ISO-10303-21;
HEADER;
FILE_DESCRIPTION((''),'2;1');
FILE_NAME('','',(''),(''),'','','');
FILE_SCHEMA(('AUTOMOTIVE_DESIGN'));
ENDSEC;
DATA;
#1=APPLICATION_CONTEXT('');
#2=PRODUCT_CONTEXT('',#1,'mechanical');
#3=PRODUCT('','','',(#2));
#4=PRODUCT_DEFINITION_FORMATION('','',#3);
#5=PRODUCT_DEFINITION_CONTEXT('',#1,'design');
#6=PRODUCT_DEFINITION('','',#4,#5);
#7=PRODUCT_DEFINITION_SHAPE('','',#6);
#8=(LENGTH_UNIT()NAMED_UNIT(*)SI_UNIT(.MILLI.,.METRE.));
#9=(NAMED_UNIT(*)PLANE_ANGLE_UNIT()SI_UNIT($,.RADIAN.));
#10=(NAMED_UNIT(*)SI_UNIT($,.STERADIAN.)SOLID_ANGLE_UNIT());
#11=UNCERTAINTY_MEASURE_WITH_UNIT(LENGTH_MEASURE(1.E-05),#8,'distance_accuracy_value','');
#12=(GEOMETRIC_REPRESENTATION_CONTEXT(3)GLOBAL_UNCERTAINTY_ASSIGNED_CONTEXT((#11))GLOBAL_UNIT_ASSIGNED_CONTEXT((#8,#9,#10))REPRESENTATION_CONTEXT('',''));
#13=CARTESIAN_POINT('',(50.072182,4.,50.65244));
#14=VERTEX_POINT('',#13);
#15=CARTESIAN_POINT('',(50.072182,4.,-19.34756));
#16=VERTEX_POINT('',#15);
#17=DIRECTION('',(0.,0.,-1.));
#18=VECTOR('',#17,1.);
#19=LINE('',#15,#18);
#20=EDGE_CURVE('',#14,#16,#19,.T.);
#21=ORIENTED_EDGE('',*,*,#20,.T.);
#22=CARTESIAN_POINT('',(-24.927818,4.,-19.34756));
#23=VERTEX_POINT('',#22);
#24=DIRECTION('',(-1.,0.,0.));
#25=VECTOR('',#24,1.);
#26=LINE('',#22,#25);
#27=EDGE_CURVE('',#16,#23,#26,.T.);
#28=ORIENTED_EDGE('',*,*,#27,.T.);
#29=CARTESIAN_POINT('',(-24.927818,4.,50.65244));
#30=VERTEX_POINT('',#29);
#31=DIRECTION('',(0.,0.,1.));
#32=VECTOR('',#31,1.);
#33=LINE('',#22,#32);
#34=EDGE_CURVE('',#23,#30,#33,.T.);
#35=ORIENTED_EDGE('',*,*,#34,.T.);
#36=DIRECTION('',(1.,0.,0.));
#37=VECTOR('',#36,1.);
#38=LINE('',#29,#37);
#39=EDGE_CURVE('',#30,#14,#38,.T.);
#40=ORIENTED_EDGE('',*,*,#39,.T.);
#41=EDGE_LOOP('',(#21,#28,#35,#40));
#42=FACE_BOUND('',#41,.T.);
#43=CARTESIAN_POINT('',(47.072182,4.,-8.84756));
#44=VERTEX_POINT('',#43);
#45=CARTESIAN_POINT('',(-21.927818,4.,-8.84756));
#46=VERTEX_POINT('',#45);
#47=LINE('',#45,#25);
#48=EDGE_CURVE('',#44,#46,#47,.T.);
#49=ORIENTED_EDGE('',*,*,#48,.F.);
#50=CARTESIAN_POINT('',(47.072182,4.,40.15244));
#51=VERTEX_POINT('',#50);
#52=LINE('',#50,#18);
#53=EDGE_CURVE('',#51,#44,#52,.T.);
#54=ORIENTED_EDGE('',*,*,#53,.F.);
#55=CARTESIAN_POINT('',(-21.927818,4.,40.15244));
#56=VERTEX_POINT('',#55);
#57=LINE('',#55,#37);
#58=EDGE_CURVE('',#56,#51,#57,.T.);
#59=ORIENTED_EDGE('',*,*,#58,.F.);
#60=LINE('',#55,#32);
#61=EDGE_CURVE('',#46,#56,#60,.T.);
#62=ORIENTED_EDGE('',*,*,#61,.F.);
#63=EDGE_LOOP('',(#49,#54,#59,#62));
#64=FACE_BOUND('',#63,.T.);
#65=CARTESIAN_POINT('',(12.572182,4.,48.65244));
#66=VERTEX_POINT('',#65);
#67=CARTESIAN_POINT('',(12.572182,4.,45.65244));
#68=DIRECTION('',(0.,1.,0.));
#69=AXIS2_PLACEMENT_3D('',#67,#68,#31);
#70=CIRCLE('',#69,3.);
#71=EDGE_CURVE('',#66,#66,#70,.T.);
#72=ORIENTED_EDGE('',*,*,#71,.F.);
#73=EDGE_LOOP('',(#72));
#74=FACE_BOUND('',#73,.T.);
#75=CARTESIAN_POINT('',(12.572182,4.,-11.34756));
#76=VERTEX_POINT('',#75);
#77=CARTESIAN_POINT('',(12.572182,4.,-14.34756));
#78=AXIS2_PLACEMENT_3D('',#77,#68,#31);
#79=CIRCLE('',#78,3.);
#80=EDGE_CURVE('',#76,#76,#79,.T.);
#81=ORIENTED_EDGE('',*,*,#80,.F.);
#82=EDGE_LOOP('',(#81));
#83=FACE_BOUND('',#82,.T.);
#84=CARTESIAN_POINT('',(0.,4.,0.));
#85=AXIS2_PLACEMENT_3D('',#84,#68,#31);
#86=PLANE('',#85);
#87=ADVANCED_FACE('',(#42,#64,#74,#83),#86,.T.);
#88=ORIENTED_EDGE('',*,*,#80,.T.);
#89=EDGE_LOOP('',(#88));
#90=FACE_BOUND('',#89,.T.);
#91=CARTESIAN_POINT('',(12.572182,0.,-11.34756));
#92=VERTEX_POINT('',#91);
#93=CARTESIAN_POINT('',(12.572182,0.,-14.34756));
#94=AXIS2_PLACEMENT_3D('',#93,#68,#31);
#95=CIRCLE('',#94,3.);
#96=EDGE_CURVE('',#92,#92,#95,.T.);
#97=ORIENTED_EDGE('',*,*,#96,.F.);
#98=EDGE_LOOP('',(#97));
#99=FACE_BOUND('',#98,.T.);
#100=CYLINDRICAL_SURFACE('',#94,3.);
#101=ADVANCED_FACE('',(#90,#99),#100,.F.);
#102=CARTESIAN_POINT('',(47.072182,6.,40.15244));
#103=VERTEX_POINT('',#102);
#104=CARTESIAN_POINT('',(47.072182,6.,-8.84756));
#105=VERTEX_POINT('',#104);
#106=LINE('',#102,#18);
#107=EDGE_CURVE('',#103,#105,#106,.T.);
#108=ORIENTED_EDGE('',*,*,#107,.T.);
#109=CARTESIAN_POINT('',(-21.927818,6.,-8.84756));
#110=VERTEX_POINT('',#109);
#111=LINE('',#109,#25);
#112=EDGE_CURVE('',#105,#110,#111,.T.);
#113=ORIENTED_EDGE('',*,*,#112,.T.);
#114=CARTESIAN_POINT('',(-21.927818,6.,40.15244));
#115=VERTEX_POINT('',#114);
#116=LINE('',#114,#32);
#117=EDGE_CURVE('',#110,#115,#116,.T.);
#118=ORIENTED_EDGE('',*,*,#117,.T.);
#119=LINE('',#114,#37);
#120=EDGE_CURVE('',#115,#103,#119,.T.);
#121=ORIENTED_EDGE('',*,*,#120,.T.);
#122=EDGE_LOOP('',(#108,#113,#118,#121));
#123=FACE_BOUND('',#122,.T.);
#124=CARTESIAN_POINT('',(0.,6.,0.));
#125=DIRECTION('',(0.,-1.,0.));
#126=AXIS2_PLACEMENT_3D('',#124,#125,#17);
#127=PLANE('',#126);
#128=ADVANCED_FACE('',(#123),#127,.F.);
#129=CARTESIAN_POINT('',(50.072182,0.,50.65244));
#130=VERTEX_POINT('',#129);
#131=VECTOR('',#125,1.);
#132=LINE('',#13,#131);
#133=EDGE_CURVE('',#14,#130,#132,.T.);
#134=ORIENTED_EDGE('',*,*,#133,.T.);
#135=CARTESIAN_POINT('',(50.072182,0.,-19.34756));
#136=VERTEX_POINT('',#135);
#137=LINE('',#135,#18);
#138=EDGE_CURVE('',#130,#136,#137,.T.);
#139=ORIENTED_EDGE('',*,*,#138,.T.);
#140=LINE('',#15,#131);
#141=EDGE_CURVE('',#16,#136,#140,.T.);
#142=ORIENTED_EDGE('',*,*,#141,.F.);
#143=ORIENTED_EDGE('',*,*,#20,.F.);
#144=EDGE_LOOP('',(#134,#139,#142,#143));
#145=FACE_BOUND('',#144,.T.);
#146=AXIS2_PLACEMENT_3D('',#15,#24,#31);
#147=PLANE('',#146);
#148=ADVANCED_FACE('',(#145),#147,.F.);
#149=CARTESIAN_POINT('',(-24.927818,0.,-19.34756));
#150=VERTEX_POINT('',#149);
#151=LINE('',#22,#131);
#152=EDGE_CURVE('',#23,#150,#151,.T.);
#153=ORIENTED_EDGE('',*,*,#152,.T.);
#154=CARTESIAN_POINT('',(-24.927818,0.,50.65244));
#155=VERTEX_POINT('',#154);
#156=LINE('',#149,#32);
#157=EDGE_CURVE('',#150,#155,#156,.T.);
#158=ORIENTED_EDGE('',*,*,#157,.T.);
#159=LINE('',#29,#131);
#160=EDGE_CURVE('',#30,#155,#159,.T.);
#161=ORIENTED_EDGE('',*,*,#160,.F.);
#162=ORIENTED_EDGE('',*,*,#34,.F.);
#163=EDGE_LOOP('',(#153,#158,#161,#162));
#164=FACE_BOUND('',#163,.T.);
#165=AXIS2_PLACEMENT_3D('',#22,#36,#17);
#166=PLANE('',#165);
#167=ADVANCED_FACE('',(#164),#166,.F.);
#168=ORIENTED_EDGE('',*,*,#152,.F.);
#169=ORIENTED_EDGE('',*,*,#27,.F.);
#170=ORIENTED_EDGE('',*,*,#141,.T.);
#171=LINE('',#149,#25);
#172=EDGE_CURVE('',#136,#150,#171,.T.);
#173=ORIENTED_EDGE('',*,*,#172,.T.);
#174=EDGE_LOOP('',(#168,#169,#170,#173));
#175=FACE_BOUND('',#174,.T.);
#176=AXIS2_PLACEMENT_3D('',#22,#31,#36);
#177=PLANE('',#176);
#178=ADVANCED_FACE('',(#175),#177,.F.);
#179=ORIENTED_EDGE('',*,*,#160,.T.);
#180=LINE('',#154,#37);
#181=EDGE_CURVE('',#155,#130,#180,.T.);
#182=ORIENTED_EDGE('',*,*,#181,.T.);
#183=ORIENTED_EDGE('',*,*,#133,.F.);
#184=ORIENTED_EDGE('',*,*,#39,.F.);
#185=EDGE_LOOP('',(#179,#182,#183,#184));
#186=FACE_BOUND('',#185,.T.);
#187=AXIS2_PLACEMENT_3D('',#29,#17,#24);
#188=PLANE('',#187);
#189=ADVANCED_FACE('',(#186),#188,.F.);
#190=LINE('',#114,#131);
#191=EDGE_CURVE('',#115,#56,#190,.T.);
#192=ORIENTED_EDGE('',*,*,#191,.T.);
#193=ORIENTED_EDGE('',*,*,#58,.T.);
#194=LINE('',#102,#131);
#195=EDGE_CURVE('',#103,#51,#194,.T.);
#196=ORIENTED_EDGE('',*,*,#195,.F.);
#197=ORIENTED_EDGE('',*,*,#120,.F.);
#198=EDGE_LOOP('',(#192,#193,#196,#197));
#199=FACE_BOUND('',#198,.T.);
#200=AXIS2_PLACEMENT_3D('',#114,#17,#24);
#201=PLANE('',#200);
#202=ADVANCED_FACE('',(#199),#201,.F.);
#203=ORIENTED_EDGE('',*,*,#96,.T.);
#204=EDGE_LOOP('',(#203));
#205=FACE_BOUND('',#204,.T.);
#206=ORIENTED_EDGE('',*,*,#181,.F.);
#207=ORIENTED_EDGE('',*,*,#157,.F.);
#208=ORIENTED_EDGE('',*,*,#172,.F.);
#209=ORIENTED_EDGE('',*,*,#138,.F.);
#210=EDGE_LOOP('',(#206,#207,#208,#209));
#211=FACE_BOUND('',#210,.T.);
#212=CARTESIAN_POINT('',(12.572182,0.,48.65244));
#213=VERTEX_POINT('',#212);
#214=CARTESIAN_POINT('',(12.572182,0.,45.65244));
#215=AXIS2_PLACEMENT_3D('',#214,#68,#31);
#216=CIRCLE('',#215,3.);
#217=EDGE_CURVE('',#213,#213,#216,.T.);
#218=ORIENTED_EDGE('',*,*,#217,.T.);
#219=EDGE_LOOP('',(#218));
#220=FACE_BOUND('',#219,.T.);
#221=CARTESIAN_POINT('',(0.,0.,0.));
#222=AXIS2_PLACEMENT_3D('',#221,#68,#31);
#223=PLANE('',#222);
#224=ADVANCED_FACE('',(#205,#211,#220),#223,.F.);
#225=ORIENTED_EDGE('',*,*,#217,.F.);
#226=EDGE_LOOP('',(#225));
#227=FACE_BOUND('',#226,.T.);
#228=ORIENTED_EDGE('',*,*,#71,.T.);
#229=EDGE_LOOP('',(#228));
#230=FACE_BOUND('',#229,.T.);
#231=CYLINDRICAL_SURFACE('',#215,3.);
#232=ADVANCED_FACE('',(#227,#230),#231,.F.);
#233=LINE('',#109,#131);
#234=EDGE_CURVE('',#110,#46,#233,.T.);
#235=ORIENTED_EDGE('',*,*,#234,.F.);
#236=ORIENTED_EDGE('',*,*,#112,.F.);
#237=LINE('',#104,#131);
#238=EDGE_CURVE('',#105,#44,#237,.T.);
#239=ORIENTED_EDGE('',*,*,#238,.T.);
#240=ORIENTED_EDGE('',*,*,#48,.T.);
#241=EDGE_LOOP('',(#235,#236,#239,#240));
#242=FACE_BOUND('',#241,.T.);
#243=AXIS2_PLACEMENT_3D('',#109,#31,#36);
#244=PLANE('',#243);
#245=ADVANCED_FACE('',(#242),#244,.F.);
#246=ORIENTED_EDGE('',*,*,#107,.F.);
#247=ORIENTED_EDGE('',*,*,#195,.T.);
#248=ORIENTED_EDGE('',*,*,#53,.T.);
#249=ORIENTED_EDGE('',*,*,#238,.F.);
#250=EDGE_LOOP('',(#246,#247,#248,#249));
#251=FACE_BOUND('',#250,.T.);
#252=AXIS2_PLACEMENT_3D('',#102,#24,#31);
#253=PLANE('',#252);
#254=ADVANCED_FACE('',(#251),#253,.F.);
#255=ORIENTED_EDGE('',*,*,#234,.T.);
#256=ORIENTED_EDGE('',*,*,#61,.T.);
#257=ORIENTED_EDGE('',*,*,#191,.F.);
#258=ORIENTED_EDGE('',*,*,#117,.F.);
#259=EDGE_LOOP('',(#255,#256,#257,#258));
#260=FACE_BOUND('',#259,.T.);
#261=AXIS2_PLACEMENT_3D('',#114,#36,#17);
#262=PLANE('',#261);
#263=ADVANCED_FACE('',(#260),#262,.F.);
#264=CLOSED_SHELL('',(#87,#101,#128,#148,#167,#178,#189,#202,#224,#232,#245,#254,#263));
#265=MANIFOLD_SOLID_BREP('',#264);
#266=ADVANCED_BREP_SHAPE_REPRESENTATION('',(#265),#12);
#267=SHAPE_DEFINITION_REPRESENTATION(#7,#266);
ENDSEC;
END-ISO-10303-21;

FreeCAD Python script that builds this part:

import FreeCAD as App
import Part
import Sketcher
Q = App.Units.Quantity

doc = App.newDocument("Part")
params = doc.addObject("Spreadsheet::Sheet", "Params")
for row, (alias, value) in enumerate([
    ("sketch1_width", "75 mm"),
    ("sketch1_height", "70 mm"),
    ("pad1_length", "4 mm"),
    ("sketch2_width", "69 mm"),
    ("sketch2_height", "49 mm"),
    ("pad2_length", "2 mm"),
    ("sketch3_diameter", "6 mm"),
    ("pocket1_length", "4 mm"),
], start=1):
    params.set(f"A{row}", alias)
    params.set(f"B{row}", "=" + value)
    params.setAlias(f"B{row}", alias)

body = doc.addObject("PartDesign::Body", "Body")

# Sketch on XZ plane
sketch1 = doc.addObject("Sketcher::SketchObject", "Sketch")
body.addObject(sketch1)
sketch1.AttachmentSupport = (doc.XZ_Plane, [""])
sketch1.MapMode = "FlatFace"
sketch1.addGeometry(Part.LineSegment(App.Vector(-24.927818, -19.34756, 0), App.Vector(-24.927818, 50.65244, 0)), False)
sketch1.addGeometry(Part.LineSegment(App.Vector(-24.927818, 50.65244, 0), App.Vector(50.072182, 50.65244, 0)), False)
sketch1.addGeometry(Part.LineSegment(App.Vector(50.072182, 50.65244, 0), App.Vector(50.072182, -19.34756, 0)), False)
sketch1.addGeometry(Part.LineSegment(App.Vector(50.072182, -19.34756, 0), App.Vector(-24.927818, -19.34756, 0)), False)
sketch1.addConstraint(Sketcher.Constraint("Coincident", 0, 2, 1, 1))
sketch1.addConstraint(Sketcher.Constraint("Coincident", 1, 2, 2, 1))
sketch1.addConstraint(Sketcher.Constraint("Coincident", 2, 2, 3, 1))
sketch1.addConstraint(Sketcher.Constraint("Coincident", 3, 2, 0, 1))
sketch1.addConstraint(Sketcher.Constraint("Vertical", 0))
sketch1.addConstraint(Sketcher.Constraint("Horizontal", 1))
sketch1.addConstraint(Sketcher.Constraint("Vertical", 2))
sketch1.addConstraint(Sketcher.Constraint("Horizontal", 3))
sketch1.addConstraint(Sketcher.Constraint("DistanceX", 1, 1, 1, 2, Q("75 mm")))
sketch1.addConstraint(Sketcher.Constraint("DistanceY", 0, 1, 0, 2, Q("70 mm")))
sketch1.addConstraint(Sketcher.Constraint("DistanceY", -1, 1, 0, 2, Q("50.65244 mm")))
sketch1.addConstraint(Sketcher.Constraint("DistanceX", 0, 2, -1, 1, Q("24.927818 mm")))
sketch1.setExpression("Constraints[8]", "Params.sketch1_width")
sketch1.setExpression("Constraints[9]", "Params.sketch1_height")
pad1 = doc.addObject("PartDesign::Pad", "Pad")
body.addObject(pad1)
pad1.Profile = sketch1
pad1.setExpression("Length", "Params.pad1_length")
pad1.Reversed = True

# Sketch on XZ plane
sketch2 = doc.addObject("Sketcher::SketchObject", "Sketch001")
body.addObject(sketch2)
sketch2.AttachmentSupport = (doc.XZ_Plane, [""])
sketch2.MapMode = "FlatFace"
sketch2.AttachmentOffset = App.Placement(App.Vector(0, 0, -4), App.Rotation())
sketch2.addGeometry(Part.LineSegment(App.Vector(-21.927818, -8.84756, 0), App.Vector(-21.927818, 40.15244, 0)), False)
sketch2.addGeometry(Part.LineSegment(App.Vector(-21.927818, 40.15244, 0), App.Vector(47.072182, 40.15244, 0)), False)
sketch2.addGeometry(Part.LineSegment(App.Vector(47.072182, 40.15244, 0), App.Vector(47.072182, -8.84756, 0)), False)
sketch2.addGeometry(Part.LineSegment(App.Vector(47.072182, -8.84756, 0), App.Vector(-21.927818, -8.84756, 0)), False)
sketch2.addConstraint(Sketcher.Constraint("Coincident", 0, 2, 1, 1))
sketch2.addConstraint(Sketcher.Constraint("Coincident", 1, 2, 2, 1))
sketch2.addConstraint(Sketcher.Constraint("Coincident", 2, 2, 3, 1))
sketch2.addConstraint(Sketcher.Constraint("Coincident", 3, 2, 0, 1))
sketch2.addConstraint(Sketcher.Constraint("Vertical", 0))
sketch2.addConstraint(Sketcher.Constraint("Horizontal", 1))
sketch2.addConstraint(Sketcher.Constraint("Vertical", 2))
sketch2.addConstraint(Sketcher.Constraint("Horizontal", 3))
sketch2.addConstraint(Sketcher.Constraint("DistanceX", 1, 1, 1, 2, Q("69 mm")))
sketch2.addConstraint(Sketcher.Constraint("DistanceY", 0, 1, 0, 2, Q("49 mm")))
sketch2.addConstraint(Sketcher.Constraint("DistanceY", -1, 1, 0, 2, Q("40.15244 mm")))
sketch2.addConstraint(Sketcher.Constraint("DistanceX", 0, 2, -1, 1, Q("21.927818 mm")))
sketch2.setExpression("Constraints[8]", "Params.sketch2_width")
sketch2.setExpression("Constraints[9]", "Params.sketch2_height")
pad2 = doc.addObject("PartDesign::Pad", "Pad001")
body.addObject(pad2)
pad2.Profile = sketch2
pad2.setExpression("Length", "Params.pad2_length")
pad2.Reversed = True

# Sketch on XZ plane
sketch3 = doc.addObject("Sketcher::SketchObject", "Sketch002")
body.addObject(sketch3)
sketch3.AttachmentSupport = (doc.XZ_Plane, [""])
sketch3.MapMode = "FlatFace"
sketch3.AttachmentOffset = App.Placement(App.Vector(0, 0, -4), App.Rotation())
sketch3.addGeometry(Part.Circle(App.Vector(12.572182, -14.34756, 0), App.Vector(0, 0, 1), 3), False)
sketch3.addGeometry(Part.Circle(App.Vector(12.572182, 45.65244, 0), App.Vector(0, 0, 1), 3), False)
sketch3.addConstraint(Sketcher.Constraint("Equal", 0, 1))
sketch3.addConstraint(Sketcher.Constraint("Vertical", 0, 3, 1, 3))
sketch3.addConstraint(Sketcher.Constraint("Diameter", 0, Q("6 mm")))
sketch3.addConstraint(Sketcher.Constraint("DistanceY", 0, 3, 1, 3, Q("60 mm")))
sketch3.addConstraint(Sketcher.Constraint("DistanceY", 0, 3, -1, 1, Q("14.34756 mm")))
sketch3.addConstraint(Sketcher.Constraint("DistanceX", -1, 1, 0, 3, Q("12.572182 mm")))
sketch3.setExpression("Constraints[2]", "Params.sketch3_diameter")
pocket1 = doc.addObject("PartDesign::Pocket", "Pocket")
body.addObject(pocket1)
pocket1.Profile = sketch3
pocket1.setExpression("Length", "Params.pocket1_length")
pocket1.Reversed = True

doc.recompute()
